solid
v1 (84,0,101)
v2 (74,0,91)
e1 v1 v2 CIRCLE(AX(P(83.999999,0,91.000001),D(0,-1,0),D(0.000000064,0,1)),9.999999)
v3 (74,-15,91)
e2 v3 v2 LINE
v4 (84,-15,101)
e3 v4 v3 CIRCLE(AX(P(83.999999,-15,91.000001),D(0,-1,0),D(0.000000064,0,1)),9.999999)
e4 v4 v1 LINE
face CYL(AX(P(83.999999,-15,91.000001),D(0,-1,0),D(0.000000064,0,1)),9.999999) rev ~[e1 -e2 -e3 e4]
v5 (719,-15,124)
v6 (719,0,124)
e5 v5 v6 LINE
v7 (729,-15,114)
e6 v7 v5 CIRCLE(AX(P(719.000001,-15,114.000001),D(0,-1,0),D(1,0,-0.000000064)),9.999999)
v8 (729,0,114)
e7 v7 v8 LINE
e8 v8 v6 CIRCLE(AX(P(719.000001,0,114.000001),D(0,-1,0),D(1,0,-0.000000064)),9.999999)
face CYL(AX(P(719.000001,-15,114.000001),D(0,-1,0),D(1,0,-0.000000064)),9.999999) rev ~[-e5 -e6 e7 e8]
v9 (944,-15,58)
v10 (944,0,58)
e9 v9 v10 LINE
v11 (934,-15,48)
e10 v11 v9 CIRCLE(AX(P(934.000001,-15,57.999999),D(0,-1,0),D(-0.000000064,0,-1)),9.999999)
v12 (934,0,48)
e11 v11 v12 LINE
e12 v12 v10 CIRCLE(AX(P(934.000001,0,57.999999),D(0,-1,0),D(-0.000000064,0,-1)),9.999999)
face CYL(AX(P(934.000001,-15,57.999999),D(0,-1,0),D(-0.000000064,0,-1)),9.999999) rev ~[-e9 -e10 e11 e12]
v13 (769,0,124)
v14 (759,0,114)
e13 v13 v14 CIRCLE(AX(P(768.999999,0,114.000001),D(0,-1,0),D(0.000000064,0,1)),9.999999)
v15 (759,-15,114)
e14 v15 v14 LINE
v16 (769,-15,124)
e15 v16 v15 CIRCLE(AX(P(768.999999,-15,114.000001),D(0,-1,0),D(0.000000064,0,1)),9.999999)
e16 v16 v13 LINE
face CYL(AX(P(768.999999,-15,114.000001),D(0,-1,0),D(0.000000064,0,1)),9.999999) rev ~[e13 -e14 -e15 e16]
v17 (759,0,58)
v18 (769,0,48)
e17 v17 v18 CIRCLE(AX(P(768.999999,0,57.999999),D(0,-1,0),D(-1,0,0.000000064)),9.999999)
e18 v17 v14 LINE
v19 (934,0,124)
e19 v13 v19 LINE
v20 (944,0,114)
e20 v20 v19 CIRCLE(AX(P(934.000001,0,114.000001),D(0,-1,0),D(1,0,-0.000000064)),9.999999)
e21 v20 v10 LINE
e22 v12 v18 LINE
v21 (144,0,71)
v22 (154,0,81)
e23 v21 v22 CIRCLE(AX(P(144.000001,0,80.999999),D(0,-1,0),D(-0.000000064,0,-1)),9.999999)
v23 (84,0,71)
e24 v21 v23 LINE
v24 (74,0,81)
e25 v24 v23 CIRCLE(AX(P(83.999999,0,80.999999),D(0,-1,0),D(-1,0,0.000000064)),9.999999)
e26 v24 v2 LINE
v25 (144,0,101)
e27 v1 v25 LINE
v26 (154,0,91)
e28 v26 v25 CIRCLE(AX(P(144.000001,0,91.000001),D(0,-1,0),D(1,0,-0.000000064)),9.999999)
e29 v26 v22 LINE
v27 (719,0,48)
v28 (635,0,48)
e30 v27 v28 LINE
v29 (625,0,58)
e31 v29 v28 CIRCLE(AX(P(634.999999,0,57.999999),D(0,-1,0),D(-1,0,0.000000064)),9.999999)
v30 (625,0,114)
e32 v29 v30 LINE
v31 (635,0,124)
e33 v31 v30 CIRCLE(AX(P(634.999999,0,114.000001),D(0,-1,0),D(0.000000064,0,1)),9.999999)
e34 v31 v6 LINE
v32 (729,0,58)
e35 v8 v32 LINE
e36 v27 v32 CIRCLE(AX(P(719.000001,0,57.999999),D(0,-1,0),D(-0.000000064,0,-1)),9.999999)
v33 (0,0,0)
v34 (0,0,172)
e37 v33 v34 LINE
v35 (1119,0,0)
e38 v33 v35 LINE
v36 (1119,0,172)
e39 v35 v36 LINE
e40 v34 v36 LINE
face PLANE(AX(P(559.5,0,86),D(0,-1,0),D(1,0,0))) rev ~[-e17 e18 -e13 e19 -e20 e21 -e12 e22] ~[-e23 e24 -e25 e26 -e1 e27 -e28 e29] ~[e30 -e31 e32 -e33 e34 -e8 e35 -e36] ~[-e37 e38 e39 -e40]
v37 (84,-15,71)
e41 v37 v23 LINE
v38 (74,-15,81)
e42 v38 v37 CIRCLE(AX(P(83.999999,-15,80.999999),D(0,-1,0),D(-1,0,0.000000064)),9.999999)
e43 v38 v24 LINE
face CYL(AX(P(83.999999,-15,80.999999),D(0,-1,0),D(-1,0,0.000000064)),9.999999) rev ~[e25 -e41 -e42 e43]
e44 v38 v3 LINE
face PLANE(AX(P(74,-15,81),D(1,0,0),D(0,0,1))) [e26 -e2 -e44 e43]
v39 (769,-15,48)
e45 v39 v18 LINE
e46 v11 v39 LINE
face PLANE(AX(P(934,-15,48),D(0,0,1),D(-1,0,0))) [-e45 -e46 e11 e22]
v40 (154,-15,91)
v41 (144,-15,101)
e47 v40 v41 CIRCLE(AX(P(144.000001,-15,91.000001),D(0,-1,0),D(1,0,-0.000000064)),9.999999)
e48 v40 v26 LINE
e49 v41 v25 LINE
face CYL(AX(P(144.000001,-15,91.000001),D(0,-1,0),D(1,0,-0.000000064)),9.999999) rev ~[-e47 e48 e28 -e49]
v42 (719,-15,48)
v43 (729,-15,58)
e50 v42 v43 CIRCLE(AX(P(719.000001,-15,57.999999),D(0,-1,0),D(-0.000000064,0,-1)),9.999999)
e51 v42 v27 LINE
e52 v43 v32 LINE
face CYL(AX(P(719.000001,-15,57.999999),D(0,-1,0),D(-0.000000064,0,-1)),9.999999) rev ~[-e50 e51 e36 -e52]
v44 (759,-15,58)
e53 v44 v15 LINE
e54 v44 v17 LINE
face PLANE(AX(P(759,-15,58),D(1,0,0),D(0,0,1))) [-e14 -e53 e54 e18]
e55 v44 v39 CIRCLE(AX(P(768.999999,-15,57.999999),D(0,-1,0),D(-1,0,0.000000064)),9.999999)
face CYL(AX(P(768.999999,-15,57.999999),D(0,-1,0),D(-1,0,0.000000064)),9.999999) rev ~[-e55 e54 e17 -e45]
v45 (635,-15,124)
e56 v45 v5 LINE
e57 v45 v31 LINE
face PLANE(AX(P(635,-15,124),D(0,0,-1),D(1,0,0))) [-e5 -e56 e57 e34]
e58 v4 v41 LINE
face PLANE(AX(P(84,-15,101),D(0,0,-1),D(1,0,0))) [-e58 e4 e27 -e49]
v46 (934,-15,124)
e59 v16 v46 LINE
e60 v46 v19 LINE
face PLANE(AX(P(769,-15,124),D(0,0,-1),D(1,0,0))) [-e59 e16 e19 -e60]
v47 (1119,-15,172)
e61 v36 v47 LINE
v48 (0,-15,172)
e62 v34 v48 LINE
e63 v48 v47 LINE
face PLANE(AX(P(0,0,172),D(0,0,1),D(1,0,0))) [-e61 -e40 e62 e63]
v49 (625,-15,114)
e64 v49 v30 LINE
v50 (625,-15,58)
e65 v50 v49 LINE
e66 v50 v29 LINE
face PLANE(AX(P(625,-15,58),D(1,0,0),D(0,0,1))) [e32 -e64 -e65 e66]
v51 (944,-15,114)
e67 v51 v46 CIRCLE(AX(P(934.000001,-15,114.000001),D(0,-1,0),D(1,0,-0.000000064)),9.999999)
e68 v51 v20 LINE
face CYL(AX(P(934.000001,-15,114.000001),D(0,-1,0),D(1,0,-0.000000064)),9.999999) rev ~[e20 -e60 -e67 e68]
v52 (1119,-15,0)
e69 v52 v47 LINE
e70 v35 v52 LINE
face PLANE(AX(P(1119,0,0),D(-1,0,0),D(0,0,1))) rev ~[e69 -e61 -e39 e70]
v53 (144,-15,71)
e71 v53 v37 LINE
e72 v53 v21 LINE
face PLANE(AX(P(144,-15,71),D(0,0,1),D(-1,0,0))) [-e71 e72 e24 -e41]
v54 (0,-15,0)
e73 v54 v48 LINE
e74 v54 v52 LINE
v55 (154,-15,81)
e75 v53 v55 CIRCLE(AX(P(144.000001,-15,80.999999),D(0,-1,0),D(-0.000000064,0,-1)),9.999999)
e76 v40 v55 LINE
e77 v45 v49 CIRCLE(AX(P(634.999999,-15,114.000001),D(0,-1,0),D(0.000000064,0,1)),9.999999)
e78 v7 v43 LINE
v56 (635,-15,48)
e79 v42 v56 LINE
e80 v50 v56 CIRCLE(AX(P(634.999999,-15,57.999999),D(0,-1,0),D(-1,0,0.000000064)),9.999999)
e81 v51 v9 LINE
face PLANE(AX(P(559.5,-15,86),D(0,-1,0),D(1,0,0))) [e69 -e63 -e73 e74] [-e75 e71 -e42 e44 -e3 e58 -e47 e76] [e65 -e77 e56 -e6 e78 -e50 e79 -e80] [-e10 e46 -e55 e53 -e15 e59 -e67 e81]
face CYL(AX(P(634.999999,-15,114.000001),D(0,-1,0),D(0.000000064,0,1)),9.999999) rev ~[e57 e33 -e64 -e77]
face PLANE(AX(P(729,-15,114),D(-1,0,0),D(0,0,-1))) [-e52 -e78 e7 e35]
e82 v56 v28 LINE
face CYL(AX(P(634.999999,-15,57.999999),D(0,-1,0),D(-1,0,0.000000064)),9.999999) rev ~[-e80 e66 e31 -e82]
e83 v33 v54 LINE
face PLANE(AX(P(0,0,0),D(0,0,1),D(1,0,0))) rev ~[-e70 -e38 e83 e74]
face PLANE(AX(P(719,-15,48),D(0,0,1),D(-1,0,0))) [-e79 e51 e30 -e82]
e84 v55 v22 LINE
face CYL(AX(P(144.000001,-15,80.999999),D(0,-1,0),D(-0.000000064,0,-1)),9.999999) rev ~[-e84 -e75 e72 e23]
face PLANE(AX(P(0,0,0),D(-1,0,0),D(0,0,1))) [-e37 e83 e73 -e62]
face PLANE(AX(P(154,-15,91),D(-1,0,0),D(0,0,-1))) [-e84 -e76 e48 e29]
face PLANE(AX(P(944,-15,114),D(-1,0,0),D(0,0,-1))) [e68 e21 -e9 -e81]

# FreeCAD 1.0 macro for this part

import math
import FreeCAD as App
import Part
import Sketcher
from FreeCAD import Vector
Q = App.Units.Quantity


def add_polygon(sketch, points):
    """Adds a closed chain of lines whose ends are joined by coincident constraints."""
    first, n = sketch.GeometryCount, len(points)
    for a, b in zip(points, points[1:] + points[:1]):
        sketch.addGeometry(Part.LineSegment(App.Vector(*a, 0), App.Vector(*b, 0)), False)
    for i in range(n):
        sketch.addConstraint(Sketcher.Constraint("Coincident", first + i, 2, first + (i + 1) % n, 1))

doc = App.newDocument("Part")
body = doc.addObject("PartDesign::Body", "Body")

# Sketch on XZ plane
sketch1 = body.newObject("Sketcher::SketchObject", "Sketch")
sketch1.AttachmentSupport = (doc.getObject("XZ_Plane"), [""])
sketch1.MapMode = "FlatFace"
add_polygon(sketch1, [(0, 172), (0, 0), (1119, 0), (1119, 172)])  # lines 0-3
sketch1.addConstraint([
    Sketcher.Constraint("Vertical", 0),
    Sketcher.Constraint("Horizontal", 1),
    Sketcher.Constraint("Vertical", 2),
    Sketcher.Constraint("Horizontal", 3),
    Sketcher.Constraint("Coincident", 0, 2, -1, 1),
    Sketcher.Constraint("DistanceX", 1, 1, 1, 2, Q("1119 mm")),
    Sketcher.Constraint("DistanceY", 0, 2, 0, 1, Q("172 mm")),
])
pad1 = body.newObject("PartDesign::Pad", "Pad")
pad1.Profile = sketch1
pad1.Length = 15

# Sketch on XZ plane
sketch2 = body.newObject("Sketcher::SketchObject", "Sketch001")
sketch2.AttachmentSupport = (doc.getObject("XZ_Plane"), [""])
sketch2.MapMode = "FlatFace"
sketch2.AttachmentOffset = App.Placement(Vector(0, 0, 15), App.Rotation())
sketch2.addGeometry([
    Part.ArcOfCircle(Part.Circle(Vector(635, 114, 0), Vector(0, 0, 1), 10), math.radians(90), math.radians(180)),  # 0
    Part.LineSegment(Vector(625, 114, 0), Vector(625, 58, 0)),  # 1
    Part.ArcOfCircle(Part.Circle(Vector(635, 58, 0), Vector(0, 0, 1), 10), math.radians(180), math.radians(270)),  # 2
    Part.LineSegment(Vector(635, 48, 0), Vector(719, 48, 0)),  # 3
    Part.ArcOfCircle(Part.Circle(Vector(719, 58, 0), Vector(0, 0, 1), 10), math.radians(-90), math.radians(0)),  # 4
    Part.LineSegment(Vector(729, 58, 0), Vector(729, 114, 0)),  # 5
    Part.ArcOfCircle(Part.Circle(Vector(719, 114, 0), Vector(0, 0, 1), 10), math.radians(0), math.radians(90)),  # 6
    Part.LineSegment(Vector(719, 124, 0), Vector(635, 124, 0)),  # 7
    Part.ArcOfCircle(Part.Circle(Vector(769, 114, 0), Vector(0, 0, 1), 10), math.radians(90), math.radians(180)),  # 8
    Part.LineSegment(Vector(759, 114, 0), Vector(759, 58, 0)),  # 9
    Part.ArcOfCircle(Part.Circle(Vector(769, 58, 0), Vector(0, 0, 1), 10), math.radians(180), math.radians(270)),  # 10
    Part.LineSegment(Vector(769, 48, 0), Vector(934, 48, 0)),  # 11
    Part.ArcOfCircle(Part.Circle(Vector(934, 58, 0), Vector(0, 0, 1), 10), math.radians(-90), math.radians(0)),  # 12
    Part.LineSegment(Vector(944, 58, 0), Vector(944, 114, 0)),  # 13
    Part.ArcOfCircle(Part.Circle(Vector(934, 114, 0), Vector(0, 0, 1), 10), math.radians(0), math.radians(90)),  # 14
    Part.LineSegment(Vector(934, 124, 0), Vector(769, 124, 0)),  # 15
    Part.ArcOfCircle(Part.Circle(Vector(84, 91, 0), Vector(0, 0, 1), 10), math.radians(90), math.radians(180)),  # 16
    Part.LineSegment(Vector(74, 91, 0), Vector(74, 81, 0)),  # 17
    Part.ArcOfCircle(Part.Circle(Vector(84, 81, 0), Vector(0, 0, 1), 10), math.radians(180), math.radians(270)),  # 18
    Part.LineSegment(Vector(84, 71, 0), Vector(144, 71, 0)),  # 19
    Part.ArcOfCircle(Part.Circle(Vector(144, 81, 0), Vector(0, 0, 1), 10), math.radians(-90), math.radians(0)),  # 20
    Part.LineSegment(Vector(154, 81, 0), Vector(154, 91, 0)),  # 21
    Part.ArcOfCircle(Part.Circle(Vector(144, 91, 0), Vector(0, 0, 1), 10), math.radians(0), math.radians(90)),  # 22
    Part.LineSegment(Vector(144, 101, 0), Vector(84, 101, 0)),  # 23
], False)
sketch2.addConstraint([
    Sketcher.Constraint("Tangent", 0, 2, 1, 1),
    Sketcher.Constraint("Tangent", 1, 2, 2, 1),
    Sketcher.Constraint("Tangent", 2, 2, 3, 1),
    Sketcher.Constraint("Tangent", 3, 2, 4, 1),
    Sketcher.Constraint("Tangent", 4, 2, 5, 1),
    Sketcher.Constraint("Tangent", 5, 2, 6, 1),
    Sketcher.Constraint("Tangent", 6, 2, 7, 1),
    Sketcher.Constraint("Tangent", 7, 2, 0, 1),
    Sketcher.Constraint("Tangent", 8, 2, 9, 1),
    Sketcher.Constraint("Tangent", 9, 2, 10, 1),
    Sketcher.Constraint("Tangent", 10, 2, 11, 1),
    Sketcher.Constraint("Tangent", 11, 2, 12, 1),
    Sketcher.Constraint("Tangent", 12, 2, 13, 1),
    Sketcher.Constraint("Tangent", 13, 2, 14, 1),
    Sketcher.Constraint("Tangent", 14, 2, 15, 1),
    Sketcher.Constraint("Tangent", 15, 2, 8, 1),
    Sketcher.Constraint("Tangent", 16, 2, 17, 1),
    Sketcher.Constraint("Tangent", 17, 2, 18, 1),
    Sketcher.Constraint("Tangent", 18, 2, 19, 1),
    Sketcher.Constraint("Tangent", 19, 2, 20, 1),
    Sketcher.Constraint("Tangent", 20, 2, 21, 1),
    Sketcher.Constraint("Tangent", 21, 2, 22, 1),
    Sketcher.Constraint("Tangent", 22, 2, 23, 1),
    Sketcher.Constraint("Tangent", 23, 2, 16, 1),
    Sketcher.Constraint("Vertical", 1),
    Sketcher.Constraint("Horizontal", 3),
    Sketcher.Constraint("Vertical", 5),
    Sketcher.Constraint("Horizontal", 7),
    Sketcher.Constraint("Vertical", 9),
    Sketcher.Constraint("Horizontal", 11),
    Sketcher.Constraint("Vertical", 13),
    Sketcher.Constraint("Horizontal", 15),
    Sketcher.Constraint("Vertical", 17),
    Sketcher.Constraint("Horizontal", 19),
    Sketcher.Constraint("Vertical", 21),
    Sketcher.Constraint("Horizontal", 23),
    Sketcher.Constraint("Equal", 0, 2),
    Sketcher.Constraint("Equal", 2, 4),
    Sketcher.Constraint("Equal", 4, 6),
    Sketcher.Constraint("Equal", 6, 8),
    Sketcher.Constraint("Equal", 8, 10),
    Sketcher.Constraint("Equal", 10, 12),
    Sketcher.Constraint("Equal", 12, 14),
    Sketcher.Constraint("Equal", 14, 16),
    Sketcher.Constraint("Equal", 16, 18),
    Sketcher.Constraint("Equal", 18, 20),
    Sketcher.Constraint("Equal", 20, 22),
    Sketcher.Constraint("Horizontal", 6, 3, 8, 3),
    Sketcher.Constraint("Horizontal", 4, 3, 10, 3),
    Sketcher.Constraint("Radius", 0, Q("9.999999 mm")),
    Sketcher.Constraint("DistanceX", 3, 1, 3, 2, Q("84 mm")),
    Sketcher.Constraint("DistanceX", 11, 1, 11, 2, Q("165 mm")),
    Sketcher.Constraint("DistanceX", 19, 1, 19, 2, Q("60 mm")),
    Sketcher.Constraint("DistanceY", 1, 2, 1, 1, Q("56 mm")),
    Sketcher.Constraint("DistanceY", 17, 2, 17, 1, Q("10 mm")),
    Sketcher.Constraint("DistanceX", -1, 1, 0, 3, Q("634.999999 mm")),
    Sketcher.Constraint("DistanceY", -1, 1, 0, 3, Q("114.000001 mm")),
    Sketcher.Constraint("DistanceX", -1, 1, 8, 3, Q("768.999999 mm")),
    Sketcher.Constraint("DistanceX", -1, 1, 16, 3, Q("83.999999 mm")),
    Sketcher.Constraint("DistanceY", -1, 1, 16, 3, Q("91.000001 mm")),
])
pocket1 = body.newObject("PartDesign::Pocket", "Pocket")
pocket1.Profile = sketch2
pocket1.Type = "ThroughAll"

doc.recompute()
